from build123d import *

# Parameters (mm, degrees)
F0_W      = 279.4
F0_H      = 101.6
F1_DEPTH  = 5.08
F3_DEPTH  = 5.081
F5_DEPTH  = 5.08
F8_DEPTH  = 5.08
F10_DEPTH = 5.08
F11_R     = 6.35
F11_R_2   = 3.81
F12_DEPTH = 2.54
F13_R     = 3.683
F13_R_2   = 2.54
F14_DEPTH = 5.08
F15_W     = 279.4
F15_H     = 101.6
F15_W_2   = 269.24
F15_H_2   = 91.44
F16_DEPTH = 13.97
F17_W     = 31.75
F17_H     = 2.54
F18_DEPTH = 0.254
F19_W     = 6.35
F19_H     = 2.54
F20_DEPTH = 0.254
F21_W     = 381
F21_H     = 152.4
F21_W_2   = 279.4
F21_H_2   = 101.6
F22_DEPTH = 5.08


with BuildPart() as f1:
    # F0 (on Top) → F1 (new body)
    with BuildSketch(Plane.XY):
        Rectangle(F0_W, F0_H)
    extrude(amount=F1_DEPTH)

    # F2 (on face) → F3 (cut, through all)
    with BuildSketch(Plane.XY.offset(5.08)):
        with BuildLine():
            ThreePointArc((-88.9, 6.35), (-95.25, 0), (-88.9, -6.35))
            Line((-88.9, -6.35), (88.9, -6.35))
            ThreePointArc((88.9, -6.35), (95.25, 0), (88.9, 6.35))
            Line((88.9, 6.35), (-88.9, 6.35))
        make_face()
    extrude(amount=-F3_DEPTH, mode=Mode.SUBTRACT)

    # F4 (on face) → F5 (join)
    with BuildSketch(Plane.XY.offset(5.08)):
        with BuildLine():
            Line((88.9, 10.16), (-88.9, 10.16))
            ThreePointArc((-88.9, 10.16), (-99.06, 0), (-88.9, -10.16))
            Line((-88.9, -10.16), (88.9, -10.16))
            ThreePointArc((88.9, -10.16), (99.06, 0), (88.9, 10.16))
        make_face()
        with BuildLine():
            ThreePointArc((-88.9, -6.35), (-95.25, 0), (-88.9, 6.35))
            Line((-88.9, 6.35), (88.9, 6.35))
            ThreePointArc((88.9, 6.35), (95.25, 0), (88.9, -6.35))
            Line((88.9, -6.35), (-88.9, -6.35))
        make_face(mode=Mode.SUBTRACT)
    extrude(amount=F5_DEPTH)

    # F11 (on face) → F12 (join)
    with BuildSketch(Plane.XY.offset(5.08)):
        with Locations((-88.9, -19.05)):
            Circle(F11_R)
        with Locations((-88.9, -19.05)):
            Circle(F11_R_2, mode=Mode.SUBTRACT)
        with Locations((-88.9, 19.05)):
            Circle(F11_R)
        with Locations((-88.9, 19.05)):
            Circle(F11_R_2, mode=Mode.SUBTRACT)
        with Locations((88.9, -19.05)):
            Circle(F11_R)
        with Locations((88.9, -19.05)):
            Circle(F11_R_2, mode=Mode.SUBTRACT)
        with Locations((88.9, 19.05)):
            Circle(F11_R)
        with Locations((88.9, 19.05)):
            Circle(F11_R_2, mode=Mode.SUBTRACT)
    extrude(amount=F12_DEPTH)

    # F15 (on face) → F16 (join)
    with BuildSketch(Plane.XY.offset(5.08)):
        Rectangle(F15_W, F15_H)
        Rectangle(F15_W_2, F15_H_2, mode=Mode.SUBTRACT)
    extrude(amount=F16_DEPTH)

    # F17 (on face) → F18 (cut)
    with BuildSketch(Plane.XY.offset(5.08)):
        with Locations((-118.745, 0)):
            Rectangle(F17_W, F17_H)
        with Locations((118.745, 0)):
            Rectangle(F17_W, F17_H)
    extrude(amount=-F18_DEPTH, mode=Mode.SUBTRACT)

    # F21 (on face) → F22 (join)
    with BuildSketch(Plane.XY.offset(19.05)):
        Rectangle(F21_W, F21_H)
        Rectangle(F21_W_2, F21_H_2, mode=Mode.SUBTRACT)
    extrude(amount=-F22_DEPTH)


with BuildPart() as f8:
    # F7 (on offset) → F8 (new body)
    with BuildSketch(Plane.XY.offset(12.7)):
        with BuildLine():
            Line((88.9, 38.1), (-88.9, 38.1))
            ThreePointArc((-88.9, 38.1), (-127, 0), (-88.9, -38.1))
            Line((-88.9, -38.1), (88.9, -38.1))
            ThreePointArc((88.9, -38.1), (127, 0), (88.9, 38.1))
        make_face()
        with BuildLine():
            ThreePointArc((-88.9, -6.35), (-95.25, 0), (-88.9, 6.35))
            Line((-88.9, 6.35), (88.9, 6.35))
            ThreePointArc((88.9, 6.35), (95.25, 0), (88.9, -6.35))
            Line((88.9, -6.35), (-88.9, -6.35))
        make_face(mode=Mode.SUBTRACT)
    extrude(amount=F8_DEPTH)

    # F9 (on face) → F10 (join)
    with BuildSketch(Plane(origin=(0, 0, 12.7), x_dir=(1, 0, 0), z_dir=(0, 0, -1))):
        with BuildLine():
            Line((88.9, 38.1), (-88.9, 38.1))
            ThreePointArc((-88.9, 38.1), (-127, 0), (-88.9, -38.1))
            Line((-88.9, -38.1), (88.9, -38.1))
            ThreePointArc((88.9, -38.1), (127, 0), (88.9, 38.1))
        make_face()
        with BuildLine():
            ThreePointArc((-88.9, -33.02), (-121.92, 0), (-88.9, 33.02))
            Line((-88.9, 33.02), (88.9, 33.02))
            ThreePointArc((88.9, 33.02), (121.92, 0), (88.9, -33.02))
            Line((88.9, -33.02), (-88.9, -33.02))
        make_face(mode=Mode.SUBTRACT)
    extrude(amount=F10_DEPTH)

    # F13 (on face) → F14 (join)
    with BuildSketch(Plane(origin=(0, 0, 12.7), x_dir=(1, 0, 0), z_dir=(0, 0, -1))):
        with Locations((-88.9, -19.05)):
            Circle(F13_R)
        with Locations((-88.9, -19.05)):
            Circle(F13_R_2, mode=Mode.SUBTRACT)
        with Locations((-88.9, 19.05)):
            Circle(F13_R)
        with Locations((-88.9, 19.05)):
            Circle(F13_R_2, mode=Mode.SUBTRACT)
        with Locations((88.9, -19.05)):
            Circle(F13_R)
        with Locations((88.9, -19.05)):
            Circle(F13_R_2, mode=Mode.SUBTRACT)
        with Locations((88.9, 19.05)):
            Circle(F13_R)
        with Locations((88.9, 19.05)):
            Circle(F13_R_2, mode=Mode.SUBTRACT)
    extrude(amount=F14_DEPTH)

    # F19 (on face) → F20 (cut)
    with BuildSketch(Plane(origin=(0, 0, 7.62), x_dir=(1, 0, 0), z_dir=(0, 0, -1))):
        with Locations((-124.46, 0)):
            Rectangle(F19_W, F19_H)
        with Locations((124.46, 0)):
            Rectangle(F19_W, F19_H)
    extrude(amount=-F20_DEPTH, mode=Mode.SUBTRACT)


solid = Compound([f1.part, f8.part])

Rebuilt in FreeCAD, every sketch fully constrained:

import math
import FreeCAD as App
import Part
import Sketcher

V = App.Vector
Q = App.Units.Quantity


def add_polygon(sketch, points):
    """Adds a closed chain of lines whose ends are joined by coincident constraints."""
    first, n = sketch.GeometryCount, len(points)
    for a, b in zip(points, points[1:] + points[:1]):
        sketch.addGeometry(Part.LineSegment(App.Vector(*a, 0), App.Vector(*b, 0)), False)
    for i in range(n):
        sketch.addConstraint(Sketcher.Constraint("Coincident", first + i, 2, first + (i + 1) % n, 1))

doc = App.newDocument("Part")
params = doc.addObject("Spreadsheet::Sheet", "Params")
for row, (alias, value) in enumerate([
    ("sketch1_width", "11 in"),
    ("sketch1_height", "4 in"),
    ("pad1_length", "0.2 in"),
    ("sketch2_width", "7 in"),
    ("sketch2_radius", "0.25 in"),
    ("sketch3_radius", "0.4 in"),
    ("sketch3_width", "7 in"),
    ("sketch3_radius2", "0.25 in"),
    ("pad2_length", "0.2 in"),
    ("sketch4_diameter", "0.5 in"),
    ("sketch4_diameter2", "0.3 in"),
    ("pad3_length", "0.1 in"),
    ("sketch5_width", "11 in"),
    ("sketch5_height", "4 in"),
    ("sketch5_width2", "10.6 in"),
    ("sketch5_height2", "3.6 in"),
    ("pad4_length", "0.55 in"),
    ("sketch6_height", "0.1 in"),
    ("sketch6_width", "1.25 in"),
    ("pocket2_length", "0.01 in"),
    ("sketch7_width", "15 in"),
    ("sketch7_width2", "11 in"),
    ("sketch7_height", "6 in"),
    ("sketch7_height2", "4 in"),
    ("pad5_length", "0.2 in"),
    ("sketch8_radius", "1.5 in"),
    ("sketch8_width", "7 in"),
    ("sketch8_radius2", "0.25 in"),
    ("pad6_length", "0.2 in"),
    ("sketch9_radius", "1.5 in"),
    ("sketch9_radius2", "1.3 in"),
    ("sketch9_width", "7 in"),
    ("pad7_length", "0.2 in"),
    ("sketch10_diameter", "0.2 in"),
    ("sketch10_diameter2", "0.29 in"),
    ("pad8_length", "0.2 in"),
    ("sketch11_height", "0.1 in"),
    ("sketch11_width", "0.25 in"),
    ("pocket3_length", "0.01 in"),
], start=1):
    params.set(f"A{row}", alias)
    params.set(f"B{row}", "=" + value)
    params.setAlias(f"B{row}", alias)

body = doc.addObject("PartDesign::Body", "Body")

sketch1 = body.newObject("Sketcher::SketchObject", "Sketch")
sketch1.AttachmentSupport = (doc.getObject("XY_Plane"), [""])
sketch1.MapMode = "FlatFace"
add_polygon(sketch1, [(-139.7, 50.8), (-139.7, -50.8), (139.7, -50.8), (139.7, 50.8)])
sketch1.addConstraint([
    Sketcher.Constraint("Vertical", 0),
    Sketcher.Constraint("Horizontal", 1),
    Sketcher.Constraint("Vertical", 2),
    Sketcher.Constraint("Horizontal", 3),
    Sketcher.Constraint("Symmetric", 0, 2, 2, 2, -1, 1),
    Sketcher.Constraint("DistanceX", 1, 1, 1, 2, Q("11 in")),
    Sketcher.Constraint("DistanceY", 0, 2, 0, 1, Q("4 in")),
])
sketch1.setExpression("Constraints[9]", "Params.sketch1_width")
sketch1.setExpression("Constraints[10]", "Params.sketch1_height")
pad1 = body.newObject("PartDesign::Pad", "Pad")
pad1.Profile = sketch1
pad1.setExpression("Length", "Params.pad1_length")

sketch2 = body.newObject("Sketcher::SketchObject", "Sketch001")
sketch2.AttachmentSupport = (doc.getObject("XY_Plane"), [""])
sketch2.MapMode = "FlatFace"
sketch2.AttachmentOffset = App.Placement(V(0, 0, 0.2 * 25.4), App.Rotation())
sketch2.addGeometry([
    Part.ArcOfCircle(Part.Circle(V(-88.9, 0, 0), V(0, 0, 1), 6.35), math.radians(90), math.radians(270)),
    Part.LineSegment(V(-88.9, -6.35, 0), V(88.9, -6.35, 0)),
    Part.ArcOfCircle(Part.Circle(V(88.9, 0, 0), V(0, 0, 1), 6.35), math.radians(-90), math.radians(90)),
    Part.LineSegment(V(88.9, 6.35, 0), V(-88.9, 6.35, 0)),
], False)
sketch2.addConstraint([
    Sketcher.Constraint("Tangent", 0, 2, 1, 1),
    Sketcher.Constraint("Tangent", 1, 2, 2, 1),
    Sketcher.Constraint("Tangent", 2, 2, 3, 1),
    Sketcher.Constraint("Tangent", 3, 2, 0, 1),
    Sketcher.Constraint("Horizontal", 1),
    Sketcher.Constraint("Horizontal", 3),
    Sketcher.Constraint("Symmetric", 0, 3, 2, 3, -1, 1),
    Sketcher.Constraint("DistanceX", 1, 1, 1, 2, Q("7 in")),
    Sketcher.Constraint("Radius", 0, Q("0.25 in")),
])
sketch2.setExpression("Constraints[7]", "Params.sketch2_width")
sketch2.setExpression("Constraints[8]", "Params.sketch2_radius")
pocket1 = body.newObject("PartDesign::Pocket", "Pocket")
pocket1.Profile = sketch2
pocket1.Type = "ThroughAll"

sketch3 = body.newObject("Sketcher::SketchObject", "Sketch002")
sketch3.AttachmentSupport = (doc.getObject("XY_Plane"), [""])
sketch3.MapMode = "FlatFace"
sketch3.AttachmentOffset = App.Placement(V(0, 0, 0.2 * 25.4), App.Rotation())
sketch3.addGeometry([
    Part.LineSegment(V(88.9, 10.16, 0), V(-88.9, 10.16, 0)),
    Part.ArcOfCircle(Part.Circle(V(-88.9, 0, 0), V(0, 0, 1), 10.16), math.radians(90), math.radians(270)),
    Part.LineSegment(V(-88.9, -10.16, 0), V(88.9, -10.16, 0)),
    Part.ArcOfCircle(Part.Circle(V(88.9, 0, 0), V(0, 0, 1), 10.16), math.radians(-90), math.radians(90)),
    Part.LineSegment(V(88.9, -6.35, 0), V(-88.9, -6.35, 0)),
    Part.ArcOfCircle(Part.Circle(V(-88.9, 0, 0), V(0, 0, 1), 6.35), math.radians(90), math.radians(270)),
    Part.LineSegment(V(-88.9, 6.35, 0), V(88.9, 6.35, 0)),
    Part.ArcOfCircle(Part.Circle(V(88.9, 0, 0), V(0, 0, 1), 6.35), math.radians(-90), math.radians(90)),
], False)
sketch3.addConstraint([
    Sketcher.Constraint("Tangent", 0, 2, 1, 1),
    Sketcher.Constraint("Tangent", 1, 2, 2, 1),
    Sketcher.Constraint("Tangent", 2, 2, 3, 1),
    Sketcher.Constraint("Tangent", 3, 2, 0, 1),
    Sketcher.Constraint("Tangent", 4, 2, 5, 2),
    Sketcher.Constraint("Tangent", 5, 1, 6, 1),
    Sketcher.Constraint("Tangent", 6, 2, 7, 2),
    Sketcher.Constraint("Tangent", 7, 1, 4, 1),
    Sketcher.Constraint("Horizontal", 0),
    Sketcher.Constraint("Horizontal", 2),
    Sketcher.Constraint("Horizontal", 4),
    Sketcher.Constraint("Horizontal", 6),
    Sketcher.Constraint("Coincident", 5, 3, 1, 3),
    Sketcher.Constraint("Symmetric", 1, 3, 3, 3, -1, 1),
    Sketcher.Constraint("Vertical", 7, 3, 2, 2),
    Sketcher.Constraint("Radius", 1, Q("0.4 in")),
    Sketcher.Constraint("DistanceX", 0, 2, 0, 1, Q("7 in")),
    Sketcher.Constraint("Radius", 5, Q("0.25 in")),
])
sketch3.setExpression("Constraints[15]", "Params.sketch3_radius")
sketch3.setExpression("Constraints[16]", "Params.sketch3_width")
sketch3.setExpression("Constraints[17]", "Params.sketch3_radius2")
pad2 = body.newObject("PartDesign::Pad", "Pad001")
pad2.Profile = sketch3
pad2.setExpression("Length", "Params.pad2_length")

sketch4 = body.newObject("Sketcher::SketchObject", "Sketch003")
sketch4.AttachmentSupport = (doc.getObject("XY_Plane"), [""])
sketch4.MapMode = "FlatFace"
sketch4.AttachmentOffset = App.Placement(V(0, 0, 0.2 * 25.4), App.Rotation())
sketch4.addGeometry([
    Part.Circle(V(-88.9, -19.05, 0), V(0, 0, 1), 6.35),
    Part.Circle(V(-88.9, -19.05, 0), V(0, 0, 1), 3.81),
    Part.Circle(V(-88.9, 19.05, 0), V(0, 0, 1), 6.35),
    Part.Circle(V(-88.9, 19.05, 0), V(0, 0, 1), 3.81),
    Part.Circle(V(88.9, -19.05, 0), V(0, 0, 1), 6.35),
    Part.Circle(V(88.9, -19.05, 0), V(0, 0, 1), 3.81),
    Part.Circle(V(88.9, 19.05, 0), V(0, 0, 1), 6.35),
    Part.Circle(V(88.9, 19.05, 0), V(0, 0, 1), 3.81),
], False)
sketch4.addConstraint([
    Sketcher.Constraint("Coincident", 1, 3, 0, 3),
    Sketcher.Constraint("Coincident", 3, 3, 2, 3),
    Sketcher.Constraint("Coincident", 5, 3, 4, 3),
    Sketcher.Constraint("Coincident", 7, 3, 6, 3),
    Sketcher.Constraint("Equal", 0, 2),
    Sketcher.Constraint("Equal", 1, 3),
    Sketcher.Constraint("Equal", 2, 4),
    Sketcher.Constraint("Equal", 3, 5),
    Sketcher.Constraint("Equal", 4, 6),
    Sketcher.Constraint("Equal", 5, 7),
    Sketcher.Constraint("Symmetric", 2, 3, 4, 3, -1, 1),
    Sketcher.Constraint("Symmetric", 0, 3, 6, 3, -1, 1),
    Sketcher.Constraint("Symmetric", 0, 3, 4, 3, -2),
    Sketcher.Constraint("Diameter", 0, Q("0.5 in")),
    Sketcher.Constraint("Diameter", 1, Q("0.3 in")),
    Sketcher.Constraint("DistanceX", 0, 3, 4, 3, Q("7 in")),
    Sketcher.Constraint("DistanceY", 0, 3, 2, 3, Q("1.5 in")),
])
sketch4.setExpression("Constraints[13]", "Params.sketch4_diameter")
sketch4.setExpression("Constraints[14]", "Params.sketch4_diameter2")
pad3 = body.newObject("PartDesign::Pad", "Pad002")
pad3.Profile = sketch4
pad3.setExpression("Length", "Params.pad3_length")

sketch5 = body.newObject("Sketcher::SketchObject", "Sketch004")
sketch5.AttachmentSupport = (doc.getObject("XY_Plane"), [""])
sketch5.MapMode = "FlatFace"
sketch5.AttachmentOffset = App.Placement(V(0, 0, 0.2 * 25.4), App.Rotation())
add_polygon(sketch5, [(-139.7, 50.8), (-139.7, -50.8), (139.7, -50.8), (139.7, 50.8)])
add_polygon(sketch5, [(134.62, -45.72), (-134.62, -45.72), (-134.62, 45.72), (134.62, 45.72)])
sketch5.addConstraint([
    Sketcher.Constraint("Vertical", 0),
    Sketcher.Constraint("Horizontal", 1),
    Sketcher.Constraint("Vertical", 2),
    Sketcher.Constraint("Horizontal", 3),
    Sketcher.Constraint("Horizontal", 4),
    Sketcher.Constraint("Vertical", 5),
    Sketcher.Constraint("Horizontal", 6),
    Sketcher.Constraint("Vertical", 7),
    Sketcher.Constraint("Symmetric", 0, 2, 2, 2, -1, 1),
    Sketcher.Constraint("Symmetric", 4, 2, 6, 2, -1, 1),
    Sketcher.Constraint("DistanceX", 1, 1, 1, 2, Q("11 in")),
    Sketcher.Constraint("DistanceY", 0, 2, 0, 1, Q("4 in")),
    Sketcher.Constraint("DistanceX", 4, 2, 4, 1, Q("10.6 in")),
    Sketcher.Constraint("DistanceY", 5, 1, 5, 2, Q("3.6 in")),
])
sketch5.setExpression("Constraints[18]", "Params.sketch5_width")
sketch5.setExpression("Constraints[19]", "Params.sketch5_height")
sketch5.setExpression("Constraints[20]", "Params.sketch5_width2")
sketch5.setExpression("Constraints[21]", "Params.sketch5_height2")
pad4 = body.newObject("PartDesign::Pad", "Pad003")
pad4.Profile = sketch5
pad4.setExpression("Length", "Params.pad4_length")

sketch6 = body.newObject("Sketcher::SketchObject", "Sketch005")
sketch6.AttachmentSupport = (doc.getObject("XY_Plane"), [""])
sketch6.MapMode = "FlatFace"
sketch6.AttachmentOffset = App.Placement(V(0, 0, 0.2 * 25.4), App.Rotation())
add_polygon(sketch6, [(-134.62, 1.27), (-134.62, -1.27), (-102.87, -1.27), (-102.87, 1.27)])
add_polygon(sketch6, [(102.87, 1.27), (102.87, -1.27), (134.62, -1.27), (134.62, 1.27)])
sketch6.addConstraint([
    Sketcher.Constraint("Vertical", 0),
    Sketcher.Constraint("Horizontal", 1),
    Sketcher.Constraint("Vertical", 2),
    Sketcher.Constraint("Horizontal", 3),
    Sketcher.Constraint("Vertical", 4),
    Sketcher.Constraint("Horizontal", 5),
    Sketcher.Constraint("Vertical", 6),
    Sketcher.Constraint("Horizontal", 7),
    Sketcher.Constraint("Symmetric", 2, 2, 4, 2, -1, 1),
    Sketcher.Constraint("Symmetric", 0, 2, 6, 2, -1, 1),
    Sketcher.Constraint("Horizontal", 1, 2, 4, 2),
    Sketcher.Constraint("DistanceY", 0, 2, 0, 1, Q("0.1 in")),
    Sketcher.Constraint("DistanceX", 1, 1, 1, 2, Q("1.25 in")),
    Sketcher.Constraint("DistanceX", 0, 2, -1, 1, Q("5.3 in")),
])
sketch6.setExpression("Constraints[19]", "Params.sketch6_height")
sketch6.setExpression("Constraints[20]", "Params.sketch6_width")
pocket2 = body.newObject("PartDesign::Pocket", "Pocket001")
pocket2.Profile = sketch6
pocket2.setExpression("Length", "Params.pocket2_length")

sketch7 = body.newObject("Sketcher::SketchObject", "Sketch006")
sketch7.AttachmentSupport = (doc.getObject("XY_Plane"), [""])
sketch7.MapMode = "FlatFace"
sketch7.AttachmentOffset = App.Placement(V(0, 0, 0.75 * 25.4), App.Rotation())
add_polygon(sketch7, [(-190.5, 76.2), (-190.5, -76.2), (190.5, -76.2), (190.5, 76.2)])
add_polygon(sketch7, [(139.7, -50.8), (-139.7, -50.8), (-139.7, 50.8), (139.7, 50.8)])
sketch7.addConstraint([
    Sketcher.Constraint("Vertical", 0),
    Sketcher.Constraint("Horizontal", 1),
    Sketcher.Constraint("Vertical", 2),
    Sketcher.Constraint("Horizontal", 3),
    Sketcher.Constraint("Horizontal", 4),
    Sketcher.Constraint("Vertical", 5),
    Sketcher.Constraint("Horizontal", 6),
    Sketcher.Constraint("Vertical", 7),
    Sketcher.Constraint("Symmetric", 0, 2, 2, 2, -1, 1),
    Sketcher.Constraint("Symmetric", 4, 2, 6, 2, -1, 1),
    Sketcher.Constraint("DistanceX", 1, 1, 1, 2, Q("15 in")),
    Sketcher.Constraint("DistanceX", 4, 2, 4, 1, Q("11 in")),
    Sketcher.Constraint("DistanceY", 0, 2, 0, 1, Q("6 in")),
    Sketcher.Constraint("DistanceY", 5, 1, 5, 2, Q("4 in")),
])
sketch7.setExpression("Constraints[18]", "Params.sketch7_width")
sketch7.setExpression("Constraints[19]", "Params.sketch7_width2")
sketch7.setExpression("Constraints[20]", "Params.sketch7_height")
sketch7.setExpression("Constraints[21]", "Params.sketch7_height2")
pad5 = body.newObject("PartDesign::Pad", "Pad004")
pad5.Profile = sketch7
pad5.setExpression("Length", "Params.pad5_length")
pad5.Reversed = True
body2 = doc.addObject("PartDesign::Body", "Body001")

sketch8 = body2.newObject("Sketcher::SketchObject", "Sketch007")
sketch8.AttachmentSupport = (doc.getObject("XY_Plane001"), [""])
sketch8.MapMode = "FlatFace"
sketch8.AttachmentOffset = App.Placement(V(0, 0, 0.5 * 25.4), App.Rotation())
sketch8.addGeometry([
    Part.LineSegment(V(88.9, 38.1, 0), V(-88.9, 38.1, 0)),
    Part.ArcOfCircle(Part.Circle(V(-88.9, 0, 0), V(0, 0, 1), 38.1), math.radians(90), math.radians(270)),
    Part.LineSegment(V(-88.9, -38.1, 0), V(88.9, -38.1, 0)),
    Part.ArcOfCircle(Part.Circle(V(88.9, 0, 0), V(0, 0, 1), 38.1), math.radians(-90), math.radians(90)),
    Part.LineSegment(V(88.9, -6.35, 0), V(-88.9, -6.35, 0)),
    Part.ArcOfCircle(Part.Circle(V(-88.9, 0, 0), V(0, 0, 1), 6.35), math.radians(90), math.radians(270)),
    Part.LineSegment(V(-88.9, 6.35, 0), V(88.9, 6.35, 0)),
    Part.ArcOfCircle(Part.Circle(V(88.9, 0, 0), V(0, 0, 1), 6.35), math.radians(-90), math.radians(90)),
], False)
sketch8.addConstraint([
    Sketcher.Constraint("Tangent", 0, 2, 1, 1),
    Sketcher.Constraint("Tangent", 1, 2, 2, 1),
    Sketcher.Constraint("Tangent", 2, 2, 3, 1),
    Sketcher.Constraint("Tangent", 3, 2, 0, 1),
    Sketcher.Constraint("Tangent", 4, 2, 5, 2),
    Sketcher.Constraint("Tangent", 5, 1, 6, 1),
    Sketcher.Constraint("Tangent", 6, 2, 7, 2),
    Sketcher.Constraint("Tangent", 7, 1, 4, 1),
    Sketcher.Constraint("Horizontal", 0),
    Sketcher.Constraint("Horizontal", 2),
    Sketcher.Constraint("Horizontal", 4),
    Sketcher.Constraint("Horizontal", 6),
    Sketcher.Constraint("Coincident", 5, 3, 1, 3),
    Sketcher.Constraint("Symmetric", 1, 3, 3, 3, -1, 1),
    Sketcher.Constraint("Vertical", 7, 3, 2, 2),
    Sketcher.Constraint("Radius", 1, Q("1.5 in")),
    Sketcher.Constraint("DistanceX", 0, 2, 0, 1, Q("7 in")),
    Sketcher.Constraint("Radius", 5, Q("0.25 in")),
])
sketch8.setExpression("Constraints[15]", "Params.sketch8_radius")
sketch8.setExpression("Constraints[16]", "Params.sketch8_width")
sketch8.setExpression("Constraints[17]", "Params.sketch8_radius2")
pad6 = body2.newObject("PartDesign::Pad", "Pad005")
pad6.Profile = sketch8
pad6.setExpression("Length", "Params.pad6_length")

sketch9 = body2.newObject("Sketcher::SketchObject", "Sketch008")
sketch9.AttachmentSupport = (doc.getObject("XY_Plane001"), [""])
sketch9.MapMode = "FlatFace"
sketch9.AttachmentOffset = App.Placement(V(0, 0, 0.5 * 25.4), App.Rotation())
sketch9.addGeometry([
    Part.LineSegment(V(88.9, -38.1, 0), V(-88.9, -38.1, 0)),
    Part.ArcOfCircle(Part.Circle(V(-88.9, 0, 0), V(0, 0, 1), 38.1), math.radians(90), math.radians(270)),
    Part.LineSegment(V(-88.9, 38.1, 0), V(88.9, 38.1, 0)),
    Part.ArcOfCircle(Part.Circle(V(88.9, 0, 0), V(0, 0, 1), 38.1), math.radians(-90), math.radians(90)),
    Part.LineSegment(V(88.9, 33.02, 0), V(-88.9, 33.02, 0)),
    Part.ArcOfCircle(Part.Circle(V(-88.9, 0, 0), V(0, 0, 1), 33.02), math.radians(90), math.radians(270)),
    Part.LineSegment(V(-88.9, -33.02, 0), V(88.9, -33.02, 0)),
    Part.ArcOfCircle(Part.Circle(V(88.9, 0, 0), V(0, 0, 1), 33.02), math.radians(-90), math.radians(90)),
], False)
sketch9.addConstraint([
    Sketcher.Constraint("Tangent", 0, 2, 1, 2),
    Sketcher.Constraint("Tangent", 1, 1, 2, 1),
    Sketcher.Constraint("Tangent", 2, 2, 3, 2),
    Sketcher.Constraint("Tangent", 3, 1, 0, 1),
    Sketcher.Constraint("Tangent", 4, 2, 5, 1),
    Sketcher.Constraint("Tangent", 5, 2, 6, 1),
    Sketcher.Constraint("Tangent", 6, 2, 7, 1),
    Sketcher.Constraint("Tangent", 7, 2, 4, 1),
    Sketcher.Constraint("Horizontal", 0),
    Sketcher.Constraint("Horizontal", 2),
    Sketcher.Constraint("Horizontal", 4),
    Sketcher.Constraint("Horizontal", 6),
    Sketcher.Constraint("Coincident", 5, 3, 1, 3),
    Sketcher.Constraint("Symmetric", 1, 3, 3, 3, -1, 1),
    Sketcher.Constraint("Vertical", 7, 3, 2, 2),
    Sketcher.Constraint("Radius", 1, Q("1.5 in")),
    Sketcher.Constraint("Radius", 5, Q("1.3 in")),
    Sketcher.Constraint("DistanceX", 0, 2, 0, 1, Q("7 in")),
])
sketch9.setExpression("Constraints[15]", "Params.sketch9_radius")
sketch9.setExpression("Constraints[16]", "Params.sketch9_radius2")
sketch9.setExpression("Constraints[17]", "Params.sketch9_width")
pad7 = body2.newObject("PartDesign::Pad", "Pad006")
pad7.Profile = sketch9
pad7.setExpression("Length", "Params.pad7_length")
pad7.Reversed = True

sketch10 = body2.newObject("Sketcher::SketchObject", "Sketch009")
sketch10.AttachmentSupport = (doc.getObject("XY_Plane001"), [""])
sketch10.MapMode = "FlatFace"
sketch10.AttachmentOffset = App.Placement(V(0, 0, 0.5 * 25.4), App.Rotation())
sketch10.addGeometry([
    Part.Circle(V(-88.9, 19.05, 0), V(0, 0, 1), 3.683),
    Part.Circle(V(-88.9, 19.05, 0), V(0, 0, 1), 2.54),
    Part.Circle(V(-88.9, -19.05, 0), V(0, 0, 1), 3.683),
    Part.Circle(V(-88.9, -19.05, 0), V(0, 0, 1), 2.54),
    Part.Circle(V(88.9, 19.05, 0), V(0, 0, 1), 3.683),
    Part.Circle(V(88.9, 19.05, 0), V(0, 0, 1), 2.54),
    Part.Circle(V(88.9, -19.05, 0), V(0, 0, 1), 3.683),
    Part.Circle(V(88.9, -19.05, 0), V(0, 0, 1), 2.54),
], False)
sketch10.addConstraint([
    Sketcher.Constraint("Coincident", 1, 3, 0, 3),
    Sketcher.Constraint("Coincident", 3, 3, 2, 3),
    Sketcher.Constraint("Coincident", 5, 3, 4, 3),
    Sketcher.Constraint("Coincident", 7, 3, 6, 3),
    Sketcher.Constraint("Equal", 0, 2),
    Sketcher.Constraint("Equal", 1, 3),
    Sketcher.Constraint("Equal", 2, 4),
    Sketcher.Constraint("Equal", 3, 5),
    Sketcher.Constraint("Equal", 4, 6),
    Sketcher.Constraint("Equal", 5, 7),
    Sketcher.Constraint("Symmetric", 2, 3, 4, 3, -1, 1),
    Sketcher.Constraint("Symmetric", 0, 3, 6, 3, -1, 1),
    Sketcher.Constraint("Symmetric", 0, 3, 4, 3, -2),
    Sketcher.Constraint("Diameter", 1, Q("0.2 in")),
    Sketcher.Constraint("Diameter", 0, Q("0.29 in")),
    Sketcher.Constraint("DistanceX", 0, 3, 4, 3, Q("7 in")),
    Sketcher.Constraint("DistanceY", 2, 3, 0, 3, Q("1.5 in")),
])
sketch10.setExpression("Constraints[13]", "Params.sketch10_diameter")
sketch10.setExpression("Constraints[14]", "Params.sketch10_diameter2")
pad8 = body2.newObject("PartDesign::Pad", "Pad007")
pad8.Profile = sketch10
pad8.setExpression("Length", "Params.pad8_length")
pad8.Reversed = True

sketch11 = body2.newObject("Sketcher::SketchObject", "Sketch010")
sketch11.AttachmentSupport = (doc.getObject("XY_Plane001"), [""])
sketch11.MapMode = "FlatFace"
sketch11.AttachmentOffset = App.Placement(V(0, 0, 0.3 * 25.4), App.Rotation())
add_polygon(sketch11, [(-127.635, -1.27), (-127.635, 1.27), (-121.285, 1.27), (-121.285, -1.27)])
add_polygon(sketch11, [(121.285, -1.27), (121.285, 1.27), (127.635, 1.27), (127.635, -1.27)])
sketch11.addConstraint([
    Sketcher.Constraint("Vertical", 0),
    Sketcher.Constraint("Horizontal", 1),
    Sketcher.Constraint("Vertical", 2),
    Sketcher.Constraint("Horizontal", 3),
    Sketcher.Constraint("Vertical", 4),
    Sketcher.Constraint("Horizontal", 5),
    Sketcher.Constraint("Vertical", 6),
    Sketcher.Constraint("Horizontal", 7),
    Sketcher.Constraint("Symmetric", 2, 2, 4, 2, -1, 1),
    Sketcher.Constraint("Symmetric", 0, 2, 6, 2, -1, 1),
    Sketcher.Constraint("Horizontal", 1, 2, 4, 2),
    Sketcher.Constraint("DistanceY", 0, 1, 0, 2, Q("0.1 in")),
    Sketcher.Constraint("DistanceX", 1, 1, 1, 2, Q("0.25 in")),
    Sketcher.Constraint("DistanceX", 0, 2, 4, 2, Q("9.8 in")),
])
sketch11.setExpression("Constraints[19]", "Params.sketch11_height")
sketch11.setExpression("Constraints[20]", "Params.sketch11_width")
pocket3 = body2.newObject("PartDesign::Pocket", "Pocket002")
pocket3.Profile = sketch11
pocket3.setExpression("Length", "Params.pocket3_length")
pocket3.Reversed = True

doc.recompute()
